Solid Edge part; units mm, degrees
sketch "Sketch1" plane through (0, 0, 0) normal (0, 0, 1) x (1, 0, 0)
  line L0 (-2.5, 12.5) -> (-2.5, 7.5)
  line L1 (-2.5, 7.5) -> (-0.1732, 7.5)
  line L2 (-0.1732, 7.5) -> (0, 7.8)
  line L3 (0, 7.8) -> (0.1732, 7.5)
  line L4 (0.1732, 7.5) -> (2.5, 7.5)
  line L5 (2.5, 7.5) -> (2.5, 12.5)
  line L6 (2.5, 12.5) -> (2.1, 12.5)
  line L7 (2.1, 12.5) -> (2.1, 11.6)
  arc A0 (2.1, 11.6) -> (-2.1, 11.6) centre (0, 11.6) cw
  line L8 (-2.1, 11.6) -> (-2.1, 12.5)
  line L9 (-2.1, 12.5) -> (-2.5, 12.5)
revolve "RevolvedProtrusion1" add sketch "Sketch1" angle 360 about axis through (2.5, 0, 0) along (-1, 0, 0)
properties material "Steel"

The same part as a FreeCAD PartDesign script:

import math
import FreeCAD as App
import Part
import Sketcher
from FreeCAD import Vector
Q = App.Units.Quantity

doc = App.newDocument("Part")
body = doc.addObject("PartDesign::Body", "Body")

# Sketch on XY plane
sketch1 = doc.addObject("Sketcher::SketchObject", "Sketch")
body.addObject(sketch1)
sketch1.AttachmentSupport = (doc.XY_Plane, [""])
sketch1.MapMode = "FlatFace"
sketch1.addGeometry(Part.LineSegment(Vector(-2.1, 12.5, 0), Vector(-2.5, 12.5, 0)), False)
sketch1.addGeometry(Part.LineSegment(Vector(-2.5, 12.5, 0), Vector(-2.5, 7.5, 0)), False)
sketch1.addGeometry(Part.LineSegment(Vector(-2.5, 7.5, 0), Vector(-0.1732, 7.5, 0)), False)
sketch1.addGeometry(Part.LineSegment(Vector(-0.1732, 7.5, 0), Vector(0, 7.8, 0)), False)
sketch1.addGeometry(Part.LineSegment(Vector(0, 7.8, 0), Vector(0.1732, 7.5, 0)), False)
sketch1.addGeometry(Part.LineSegment(Vector(0.1732, 7.5, 0), Vector(2.5, 7.5, 0)), False)
sketch1.addGeometry(Part.LineSegment(Vector(2.5, 7.5, 0), Vector(2.5, 12.5, 0)), False)
sketch1.addGeometry(Part.LineSegment(Vector(2.5, 12.5, 0), Vector(2.1, 12.5, 0)), False)
sketch1.addGeometry(Part.LineSegment(Vector(2.1, 12.5, 0), Vector(2.1, 11.6, 0)), False)
sketch1.addGeometry(Part.ArcOfCircle(Part.Circle(Vector(0, 11.6, 0), Vector(0, 0, 1), 2.1), math.radians(180), math.radians(360)), False)
sketch1.addGeometry(Part.LineSegment(Vector(-2.1, 11.6, 0), Vector(-2.1, 12.5, 0)), False)
sketch1.addConstraint(Sketcher.Constraint("Coincident", 0, 2, 1, 1))
sketch1.addConstraint(Sketcher.Constraint("Coincident", 1, 2, 2, 1))
sketch1.addConstraint(Sketcher.Constraint("Coincident", 2, 2, 3, 1))
sketch1.addConstraint(Sketcher.Constraint("Coincident", 3, 2, 4, 1))
sketch1.addConstraint(Sketcher.Constraint("Coincident", 4, 2, 5, 1))
sketch1.addConstraint(Sketcher.Constraint("Coincident", 5, 2, 6, 1))
sketch1.addConstraint(Sketcher.Constraint("Coincident", 6, 2, 7, 1))
sketch1.addConstraint(Sketcher.Constraint("Coincident", 7, 2, 8, 1))
sketch1.addConstraint(Sketcher.Constraint("Tangent", 8, 2, 9, 2))
sketch1.addConstraint(Sketcher.Constraint("Tangent", 9, 1, 10, 1))
sketch1.addConstraint(Sketcher.Constraint("Coincident", 10, 2, 0, 1))
sketch1.addConstraint(Sketcher.Constraint("Horizontal", 0))
sketch1.addConstraint(Sketcher.Constraint("Vertical", 1))
sketch1.addConstraint(Sketcher.Constraint("Horizontal", 2))
sketch1.addConstraint(Sketcher.Constraint("Horizontal", 5))
sketch1.addConstraint(Sketcher.Constraint("Vertical", 6))
sketch1.addConstraint(Sketcher.Constraint("Horizontal", 7))
sketch1.addConstraint(Sketcher.Constraint("Vertical", 8))
sketch1.addConstraint(Sketcher.Constraint("Vertical", 10))
sketch1.addConstraint(Sketcher.Constraint("Symmetric", 2, 2, 4, 2, -2))
sketch1.addConstraint(Sketcher.Constraint("Symmetric", 0, 2, 6, 2, -2))
sketch1.addConstraint(Sketcher.Constraint("PointOnObject", 9, 3, -2))
sketch1.addConstraint(Sketcher.Constraint("PointOnObject", 3, 2, -2))
sketch1.addConstraint(Sketcher.Constraint("Radius", 9, Q("2.1 mm")))
sketch1.addConstraint(Sketcher.Constraint("DistanceY", 1, 2, 1, 1, Q("5 mm")))
sketch1.addConstraint(Sketcher.Constraint("Angle", 3, Q("60.0007 deg")))
sketch1.addConstraint(Sketcher.Constraint("DistanceX", 0, 2, 0, 1, Q("0.4 mm")))
sketch1.addConstraint(Sketcher.Constraint("DistanceY", 8, 2, 8, 1, Q("0.9 mm")))
sketch1.addConstraint(Sketcher.Constraint("DistanceY", -1, 1, 9, 3, Q("11.6 mm")))
sketch1.addConstraint(Sketcher.Constraint("DistanceY", -1, 1, 3, 2, Q("7.8 mm")))
revolution = doc.addObject("PartDesign::Revolution", "Revolution")
body.addObject(revolution)
revolution.Profile = sketch1
revolution.ReferenceAxis = (sketch1, ["H_Axis"])
revolution.Angle = 360

doc.recompute()
